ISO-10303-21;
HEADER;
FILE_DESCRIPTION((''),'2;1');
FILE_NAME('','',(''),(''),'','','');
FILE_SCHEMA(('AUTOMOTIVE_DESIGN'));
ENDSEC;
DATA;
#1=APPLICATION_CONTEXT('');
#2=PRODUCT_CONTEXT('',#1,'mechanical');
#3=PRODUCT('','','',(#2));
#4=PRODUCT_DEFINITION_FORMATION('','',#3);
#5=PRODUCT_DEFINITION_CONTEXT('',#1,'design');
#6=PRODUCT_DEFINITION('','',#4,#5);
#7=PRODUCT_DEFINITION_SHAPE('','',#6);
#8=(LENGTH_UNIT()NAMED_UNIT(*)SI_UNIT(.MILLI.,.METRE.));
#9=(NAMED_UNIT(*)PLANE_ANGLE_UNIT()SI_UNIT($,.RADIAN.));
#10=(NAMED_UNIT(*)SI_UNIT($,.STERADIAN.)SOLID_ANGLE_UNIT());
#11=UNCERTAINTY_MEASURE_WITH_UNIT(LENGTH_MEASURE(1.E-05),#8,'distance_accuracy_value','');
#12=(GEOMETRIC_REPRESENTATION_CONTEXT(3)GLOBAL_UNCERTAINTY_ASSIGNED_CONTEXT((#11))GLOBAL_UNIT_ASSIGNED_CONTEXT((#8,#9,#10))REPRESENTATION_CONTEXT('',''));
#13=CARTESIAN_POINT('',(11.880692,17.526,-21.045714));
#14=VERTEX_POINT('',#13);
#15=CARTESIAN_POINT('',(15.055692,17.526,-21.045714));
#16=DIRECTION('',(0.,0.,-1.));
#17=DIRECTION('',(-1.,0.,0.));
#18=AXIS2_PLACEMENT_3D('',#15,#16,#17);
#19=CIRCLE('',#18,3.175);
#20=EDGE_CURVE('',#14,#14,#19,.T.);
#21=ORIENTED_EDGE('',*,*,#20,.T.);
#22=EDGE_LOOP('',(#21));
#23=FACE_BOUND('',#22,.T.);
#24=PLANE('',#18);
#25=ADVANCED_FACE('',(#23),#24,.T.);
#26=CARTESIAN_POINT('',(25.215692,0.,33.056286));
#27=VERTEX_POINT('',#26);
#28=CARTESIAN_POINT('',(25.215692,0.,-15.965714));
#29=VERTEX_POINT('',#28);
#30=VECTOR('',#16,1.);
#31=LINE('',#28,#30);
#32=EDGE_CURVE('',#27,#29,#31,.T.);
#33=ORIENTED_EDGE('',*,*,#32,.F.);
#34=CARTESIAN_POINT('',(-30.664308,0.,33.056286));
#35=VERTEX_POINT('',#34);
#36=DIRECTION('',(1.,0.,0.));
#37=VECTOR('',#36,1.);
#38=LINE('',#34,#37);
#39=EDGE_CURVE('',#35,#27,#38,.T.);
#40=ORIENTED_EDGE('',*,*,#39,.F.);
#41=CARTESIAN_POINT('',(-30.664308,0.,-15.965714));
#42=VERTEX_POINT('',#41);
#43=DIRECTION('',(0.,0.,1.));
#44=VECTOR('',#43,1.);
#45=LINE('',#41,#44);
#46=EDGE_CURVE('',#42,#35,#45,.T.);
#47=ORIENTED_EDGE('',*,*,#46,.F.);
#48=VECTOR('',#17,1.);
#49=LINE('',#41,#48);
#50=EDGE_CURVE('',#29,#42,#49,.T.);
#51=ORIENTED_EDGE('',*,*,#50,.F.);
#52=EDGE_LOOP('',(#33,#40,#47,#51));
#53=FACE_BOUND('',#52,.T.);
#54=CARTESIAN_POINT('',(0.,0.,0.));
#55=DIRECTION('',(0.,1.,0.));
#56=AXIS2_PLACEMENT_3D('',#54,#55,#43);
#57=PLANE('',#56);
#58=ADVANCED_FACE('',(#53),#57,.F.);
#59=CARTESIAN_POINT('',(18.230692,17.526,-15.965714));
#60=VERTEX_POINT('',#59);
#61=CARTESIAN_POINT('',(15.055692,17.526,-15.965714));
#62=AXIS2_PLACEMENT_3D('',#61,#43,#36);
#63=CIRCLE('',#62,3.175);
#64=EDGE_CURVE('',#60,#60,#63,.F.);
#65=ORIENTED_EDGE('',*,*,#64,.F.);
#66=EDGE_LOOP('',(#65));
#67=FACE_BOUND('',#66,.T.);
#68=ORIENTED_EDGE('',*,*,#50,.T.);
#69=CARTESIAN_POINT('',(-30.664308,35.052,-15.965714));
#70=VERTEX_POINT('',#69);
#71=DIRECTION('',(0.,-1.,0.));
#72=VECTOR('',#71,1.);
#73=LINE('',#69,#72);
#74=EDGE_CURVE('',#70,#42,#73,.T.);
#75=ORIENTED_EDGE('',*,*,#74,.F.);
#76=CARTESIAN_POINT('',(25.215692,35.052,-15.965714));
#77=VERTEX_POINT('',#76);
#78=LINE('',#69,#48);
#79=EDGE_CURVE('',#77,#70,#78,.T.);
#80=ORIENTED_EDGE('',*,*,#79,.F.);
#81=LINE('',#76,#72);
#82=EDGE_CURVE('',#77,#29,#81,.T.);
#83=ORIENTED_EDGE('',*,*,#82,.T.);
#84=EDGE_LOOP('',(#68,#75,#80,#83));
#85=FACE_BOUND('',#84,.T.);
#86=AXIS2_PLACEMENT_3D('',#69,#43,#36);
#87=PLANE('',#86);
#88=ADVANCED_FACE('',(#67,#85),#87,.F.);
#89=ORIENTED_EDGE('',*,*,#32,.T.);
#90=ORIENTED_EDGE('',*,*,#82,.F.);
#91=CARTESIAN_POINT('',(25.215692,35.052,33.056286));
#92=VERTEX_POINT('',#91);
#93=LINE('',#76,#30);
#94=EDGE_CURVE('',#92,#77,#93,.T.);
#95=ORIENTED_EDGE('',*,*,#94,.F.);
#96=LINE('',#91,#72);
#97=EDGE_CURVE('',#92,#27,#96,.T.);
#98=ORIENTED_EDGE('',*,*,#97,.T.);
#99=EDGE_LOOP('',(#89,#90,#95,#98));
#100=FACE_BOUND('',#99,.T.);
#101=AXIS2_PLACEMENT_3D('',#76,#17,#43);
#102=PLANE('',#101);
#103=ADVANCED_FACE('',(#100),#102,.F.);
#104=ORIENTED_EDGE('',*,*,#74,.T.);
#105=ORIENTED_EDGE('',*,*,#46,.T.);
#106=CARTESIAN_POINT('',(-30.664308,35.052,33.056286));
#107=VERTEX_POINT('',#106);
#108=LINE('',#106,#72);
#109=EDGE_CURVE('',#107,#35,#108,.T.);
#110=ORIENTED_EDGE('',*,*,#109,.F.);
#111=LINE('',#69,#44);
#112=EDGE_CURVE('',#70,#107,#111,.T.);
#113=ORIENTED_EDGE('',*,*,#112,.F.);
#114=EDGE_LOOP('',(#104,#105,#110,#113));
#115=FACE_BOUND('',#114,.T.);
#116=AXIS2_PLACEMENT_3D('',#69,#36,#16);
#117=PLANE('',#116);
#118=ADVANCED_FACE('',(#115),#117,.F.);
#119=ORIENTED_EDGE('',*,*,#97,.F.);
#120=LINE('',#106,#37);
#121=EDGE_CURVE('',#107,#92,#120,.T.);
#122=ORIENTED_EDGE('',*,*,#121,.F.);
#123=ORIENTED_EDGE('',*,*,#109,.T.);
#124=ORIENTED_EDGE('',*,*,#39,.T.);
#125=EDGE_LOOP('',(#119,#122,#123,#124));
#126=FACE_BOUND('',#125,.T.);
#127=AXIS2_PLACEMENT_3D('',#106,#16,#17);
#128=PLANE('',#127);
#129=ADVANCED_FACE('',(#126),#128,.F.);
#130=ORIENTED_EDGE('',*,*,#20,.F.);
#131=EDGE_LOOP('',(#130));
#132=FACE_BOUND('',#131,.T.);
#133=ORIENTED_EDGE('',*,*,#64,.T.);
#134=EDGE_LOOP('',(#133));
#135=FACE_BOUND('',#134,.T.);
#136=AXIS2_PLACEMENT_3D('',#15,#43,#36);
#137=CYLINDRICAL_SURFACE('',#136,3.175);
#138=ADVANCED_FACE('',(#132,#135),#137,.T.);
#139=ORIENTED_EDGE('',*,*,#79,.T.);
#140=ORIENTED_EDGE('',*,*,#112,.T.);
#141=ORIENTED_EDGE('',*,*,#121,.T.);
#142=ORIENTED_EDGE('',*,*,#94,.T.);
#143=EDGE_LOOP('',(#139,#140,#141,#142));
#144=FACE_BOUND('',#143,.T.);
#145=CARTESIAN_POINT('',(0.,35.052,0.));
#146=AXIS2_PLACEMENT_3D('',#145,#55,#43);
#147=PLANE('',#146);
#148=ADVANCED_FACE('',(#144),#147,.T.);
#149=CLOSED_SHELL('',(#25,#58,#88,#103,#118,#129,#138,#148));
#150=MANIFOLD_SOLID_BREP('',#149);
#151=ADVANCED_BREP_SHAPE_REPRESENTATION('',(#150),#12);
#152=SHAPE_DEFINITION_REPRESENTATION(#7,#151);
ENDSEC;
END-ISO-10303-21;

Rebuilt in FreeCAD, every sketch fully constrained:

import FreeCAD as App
import Part
import Sketcher
Q = App.Units.Quantity

doc = App.newDocument("Part")
body = doc.addObject("PartDesign::Body", "Body")

# Sketch on XZ plane
sketch1 = body.newObject("Sketcher::SketchObject", "Sketch")
sketch1.AttachmentSupport = (doc.getObject("XZ_Plane"), [""])
sketch1.MapMode = "FlatFace"
sketch1.addGeometry([
    Part.LineSegment(App.Vector(-30.664308, -15.965714, 0), App.Vector(-30.664308, 33.056286, 0)),
    Part.LineSegment(App.Vector(-30.664308, 33.056286, 0), App.Vector(25.215692, 33.056286, 0)),
    Part.LineSegment(App.Vector(25.215692, 33.056286, 0), App.Vector(25.215692, -15.965714, 0)),
    Part.LineSegment(App.Vector(25.215692, -15.965714, 0), App.Vector(-30.664308, -15.965714, 0)),
], False)
sketch1.addConstraint([
    Sketcher.Constraint("Coincident", 0, 2, 1, 1),
    Sketcher.Constraint("Coincident", 1, 2, 2, 1),
    Sketcher.Constraint("Coincident", 2, 2, 3, 1),
    Sketcher.Constraint("Coincident", 3, 2, 0, 1),
    Sketcher.Constraint("Vertical", 0),
    Sketcher.Constraint("Horizontal", 1),
    Sketcher.Constraint("Vertical", 2),
    Sketcher.Constraint("Horizontal", 3),
    Sketcher.Constraint("DistanceX", 1, 1, 1, 2, Q("2.2 in")),
    Sketcher.Constraint("DistanceY", 0, 1, 0, 2, Q("1.93 in")),
    Sketcher.Constraint("DistanceX", 0, 2, -1, 1, 30.664308),
    Sketcher.Constraint("DistanceY", -1, 1, 0, 2, 33.056286),
])
pad1 = body.newObject("PartDesign::Pad", "Pad")
pad1.Profile = sketch1
pad1.Length = Q("1.38 in")
pad1.Reversed = True

# Sketch on XY plane
sketch2 = body.newObject("Sketcher::SketchObject", "Sketch001")
sketch2.AttachmentSupport = (doc.getObject("XY_Plane"), [""])
sketch2.MapMode = "FlatFace"
sketch2.AttachmentOffset = App.Placement(App.Vector(0, 0, -15.965714), App.Rotation())
sketch2.addGeometry(Part.Circle(App.Vector(15.055692, 17.526, 0), App.Vector(0, 0, 1), 3.175), False)
sketch2.addConstraint([
    Sketcher.Constraint("Diameter", 0, Q("0.25 in")),
    Sketcher.Constraint("DistanceY", -1, 1, 0, 3, Q("0.69 in")),
    Sketcher.Constraint("DistanceX", -1, 1, 0, 3, 15.055692),
])
pad2 = body.newObject("PartDesign::Pad", "Pad001")
pad2.Profile = sketch2
pad2.Length = Q("0.2 in")
pad2.Reversed = True

doc.recompute()
